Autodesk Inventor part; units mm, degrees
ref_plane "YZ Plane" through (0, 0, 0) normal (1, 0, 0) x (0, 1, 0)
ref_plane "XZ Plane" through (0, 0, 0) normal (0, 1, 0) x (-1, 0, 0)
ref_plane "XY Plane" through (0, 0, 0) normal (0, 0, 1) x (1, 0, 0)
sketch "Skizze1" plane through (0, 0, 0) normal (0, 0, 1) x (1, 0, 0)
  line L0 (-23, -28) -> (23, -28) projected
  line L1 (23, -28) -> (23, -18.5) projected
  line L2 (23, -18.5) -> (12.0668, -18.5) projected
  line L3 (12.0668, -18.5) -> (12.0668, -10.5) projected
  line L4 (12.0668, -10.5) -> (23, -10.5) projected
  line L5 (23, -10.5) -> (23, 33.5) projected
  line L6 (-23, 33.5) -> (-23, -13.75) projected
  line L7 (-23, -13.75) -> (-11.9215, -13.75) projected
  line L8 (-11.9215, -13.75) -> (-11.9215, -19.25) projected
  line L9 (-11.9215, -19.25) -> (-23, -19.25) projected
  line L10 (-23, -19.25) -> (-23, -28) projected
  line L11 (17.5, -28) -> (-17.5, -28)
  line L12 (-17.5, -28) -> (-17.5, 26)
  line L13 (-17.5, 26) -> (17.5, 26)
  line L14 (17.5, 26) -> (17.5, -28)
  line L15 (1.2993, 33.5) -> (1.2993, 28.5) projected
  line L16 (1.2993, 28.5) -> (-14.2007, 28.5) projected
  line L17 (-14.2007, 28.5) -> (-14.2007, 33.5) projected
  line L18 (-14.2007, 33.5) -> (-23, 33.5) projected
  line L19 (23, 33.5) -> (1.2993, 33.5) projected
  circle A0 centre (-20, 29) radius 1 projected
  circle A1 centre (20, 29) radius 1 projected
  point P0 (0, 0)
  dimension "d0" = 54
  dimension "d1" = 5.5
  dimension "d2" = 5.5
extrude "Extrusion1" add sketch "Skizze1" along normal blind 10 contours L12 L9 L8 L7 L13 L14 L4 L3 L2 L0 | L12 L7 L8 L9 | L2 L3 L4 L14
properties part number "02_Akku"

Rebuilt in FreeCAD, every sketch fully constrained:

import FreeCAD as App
import Part
import Sketcher
from FreeCAD import Vector

doc = App.newDocument("Part")
body = doc.addObject("PartDesign::Body", "Body")

sketch1 = doc.addObject("Sketcher::SketchObject", "Sketch")
body.addObject(sketch1)
sketch1.AttachmentSupport = (doc.XY_Plane, [""])
sketch1.MapMode = "FlatFace"
sketch1.addGeometry([
    Part.LineSegment(Vector(-17.5, -28, 0), Vector(17.5, -28, 0)),
    Part.LineSegment(Vector(17.5, -28, 0), Vector(17.5, 26, 0)),
    Part.LineSegment(Vector(17.5, 26, 0), Vector(-17.5, 26, 0)),
    Part.LineSegment(Vector(-17.5, 26, 0), Vector(-17.5, -28, 0)),
], False)
sketch1.addConstraint([
    Sketcher.Constraint("Coincident", 0, 2, 1, 1),
    Sketcher.Constraint("Coincident", 1, 2, 2, 1),
    Sketcher.Constraint("Coincident", 2, 2, 3, 1),
    Sketcher.Constraint("Coincident", 3, 2, 0, 1),
    Sketcher.Constraint("Horizontal", 0),
    Sketcher.Constraint("Vertical", 1),
    Sketcher.Constraint("Horizontal", 2),
    Sketcher.Constraint("Vertical", 3),
    Sketcher.Constraint("DistanceY", 1, 1, 1, 2, 54.0),
    Sketcher.Constraint("DistanceX", 0, 1, 0, 2, 35.0),
    Sketcher.Constraint("DistanceY", 0, 2, -1, 1, 28.0),
    Sketcher.Constraint("DistanceX", -1, 1, 0, 2, 17.5),
])
pad1 = doc.addObject("PartDesign::Pad", "Pad")
body.addObject(pad1)
pad1.Profile = sketch1
pad1.Length = 10

doc.recompute()
